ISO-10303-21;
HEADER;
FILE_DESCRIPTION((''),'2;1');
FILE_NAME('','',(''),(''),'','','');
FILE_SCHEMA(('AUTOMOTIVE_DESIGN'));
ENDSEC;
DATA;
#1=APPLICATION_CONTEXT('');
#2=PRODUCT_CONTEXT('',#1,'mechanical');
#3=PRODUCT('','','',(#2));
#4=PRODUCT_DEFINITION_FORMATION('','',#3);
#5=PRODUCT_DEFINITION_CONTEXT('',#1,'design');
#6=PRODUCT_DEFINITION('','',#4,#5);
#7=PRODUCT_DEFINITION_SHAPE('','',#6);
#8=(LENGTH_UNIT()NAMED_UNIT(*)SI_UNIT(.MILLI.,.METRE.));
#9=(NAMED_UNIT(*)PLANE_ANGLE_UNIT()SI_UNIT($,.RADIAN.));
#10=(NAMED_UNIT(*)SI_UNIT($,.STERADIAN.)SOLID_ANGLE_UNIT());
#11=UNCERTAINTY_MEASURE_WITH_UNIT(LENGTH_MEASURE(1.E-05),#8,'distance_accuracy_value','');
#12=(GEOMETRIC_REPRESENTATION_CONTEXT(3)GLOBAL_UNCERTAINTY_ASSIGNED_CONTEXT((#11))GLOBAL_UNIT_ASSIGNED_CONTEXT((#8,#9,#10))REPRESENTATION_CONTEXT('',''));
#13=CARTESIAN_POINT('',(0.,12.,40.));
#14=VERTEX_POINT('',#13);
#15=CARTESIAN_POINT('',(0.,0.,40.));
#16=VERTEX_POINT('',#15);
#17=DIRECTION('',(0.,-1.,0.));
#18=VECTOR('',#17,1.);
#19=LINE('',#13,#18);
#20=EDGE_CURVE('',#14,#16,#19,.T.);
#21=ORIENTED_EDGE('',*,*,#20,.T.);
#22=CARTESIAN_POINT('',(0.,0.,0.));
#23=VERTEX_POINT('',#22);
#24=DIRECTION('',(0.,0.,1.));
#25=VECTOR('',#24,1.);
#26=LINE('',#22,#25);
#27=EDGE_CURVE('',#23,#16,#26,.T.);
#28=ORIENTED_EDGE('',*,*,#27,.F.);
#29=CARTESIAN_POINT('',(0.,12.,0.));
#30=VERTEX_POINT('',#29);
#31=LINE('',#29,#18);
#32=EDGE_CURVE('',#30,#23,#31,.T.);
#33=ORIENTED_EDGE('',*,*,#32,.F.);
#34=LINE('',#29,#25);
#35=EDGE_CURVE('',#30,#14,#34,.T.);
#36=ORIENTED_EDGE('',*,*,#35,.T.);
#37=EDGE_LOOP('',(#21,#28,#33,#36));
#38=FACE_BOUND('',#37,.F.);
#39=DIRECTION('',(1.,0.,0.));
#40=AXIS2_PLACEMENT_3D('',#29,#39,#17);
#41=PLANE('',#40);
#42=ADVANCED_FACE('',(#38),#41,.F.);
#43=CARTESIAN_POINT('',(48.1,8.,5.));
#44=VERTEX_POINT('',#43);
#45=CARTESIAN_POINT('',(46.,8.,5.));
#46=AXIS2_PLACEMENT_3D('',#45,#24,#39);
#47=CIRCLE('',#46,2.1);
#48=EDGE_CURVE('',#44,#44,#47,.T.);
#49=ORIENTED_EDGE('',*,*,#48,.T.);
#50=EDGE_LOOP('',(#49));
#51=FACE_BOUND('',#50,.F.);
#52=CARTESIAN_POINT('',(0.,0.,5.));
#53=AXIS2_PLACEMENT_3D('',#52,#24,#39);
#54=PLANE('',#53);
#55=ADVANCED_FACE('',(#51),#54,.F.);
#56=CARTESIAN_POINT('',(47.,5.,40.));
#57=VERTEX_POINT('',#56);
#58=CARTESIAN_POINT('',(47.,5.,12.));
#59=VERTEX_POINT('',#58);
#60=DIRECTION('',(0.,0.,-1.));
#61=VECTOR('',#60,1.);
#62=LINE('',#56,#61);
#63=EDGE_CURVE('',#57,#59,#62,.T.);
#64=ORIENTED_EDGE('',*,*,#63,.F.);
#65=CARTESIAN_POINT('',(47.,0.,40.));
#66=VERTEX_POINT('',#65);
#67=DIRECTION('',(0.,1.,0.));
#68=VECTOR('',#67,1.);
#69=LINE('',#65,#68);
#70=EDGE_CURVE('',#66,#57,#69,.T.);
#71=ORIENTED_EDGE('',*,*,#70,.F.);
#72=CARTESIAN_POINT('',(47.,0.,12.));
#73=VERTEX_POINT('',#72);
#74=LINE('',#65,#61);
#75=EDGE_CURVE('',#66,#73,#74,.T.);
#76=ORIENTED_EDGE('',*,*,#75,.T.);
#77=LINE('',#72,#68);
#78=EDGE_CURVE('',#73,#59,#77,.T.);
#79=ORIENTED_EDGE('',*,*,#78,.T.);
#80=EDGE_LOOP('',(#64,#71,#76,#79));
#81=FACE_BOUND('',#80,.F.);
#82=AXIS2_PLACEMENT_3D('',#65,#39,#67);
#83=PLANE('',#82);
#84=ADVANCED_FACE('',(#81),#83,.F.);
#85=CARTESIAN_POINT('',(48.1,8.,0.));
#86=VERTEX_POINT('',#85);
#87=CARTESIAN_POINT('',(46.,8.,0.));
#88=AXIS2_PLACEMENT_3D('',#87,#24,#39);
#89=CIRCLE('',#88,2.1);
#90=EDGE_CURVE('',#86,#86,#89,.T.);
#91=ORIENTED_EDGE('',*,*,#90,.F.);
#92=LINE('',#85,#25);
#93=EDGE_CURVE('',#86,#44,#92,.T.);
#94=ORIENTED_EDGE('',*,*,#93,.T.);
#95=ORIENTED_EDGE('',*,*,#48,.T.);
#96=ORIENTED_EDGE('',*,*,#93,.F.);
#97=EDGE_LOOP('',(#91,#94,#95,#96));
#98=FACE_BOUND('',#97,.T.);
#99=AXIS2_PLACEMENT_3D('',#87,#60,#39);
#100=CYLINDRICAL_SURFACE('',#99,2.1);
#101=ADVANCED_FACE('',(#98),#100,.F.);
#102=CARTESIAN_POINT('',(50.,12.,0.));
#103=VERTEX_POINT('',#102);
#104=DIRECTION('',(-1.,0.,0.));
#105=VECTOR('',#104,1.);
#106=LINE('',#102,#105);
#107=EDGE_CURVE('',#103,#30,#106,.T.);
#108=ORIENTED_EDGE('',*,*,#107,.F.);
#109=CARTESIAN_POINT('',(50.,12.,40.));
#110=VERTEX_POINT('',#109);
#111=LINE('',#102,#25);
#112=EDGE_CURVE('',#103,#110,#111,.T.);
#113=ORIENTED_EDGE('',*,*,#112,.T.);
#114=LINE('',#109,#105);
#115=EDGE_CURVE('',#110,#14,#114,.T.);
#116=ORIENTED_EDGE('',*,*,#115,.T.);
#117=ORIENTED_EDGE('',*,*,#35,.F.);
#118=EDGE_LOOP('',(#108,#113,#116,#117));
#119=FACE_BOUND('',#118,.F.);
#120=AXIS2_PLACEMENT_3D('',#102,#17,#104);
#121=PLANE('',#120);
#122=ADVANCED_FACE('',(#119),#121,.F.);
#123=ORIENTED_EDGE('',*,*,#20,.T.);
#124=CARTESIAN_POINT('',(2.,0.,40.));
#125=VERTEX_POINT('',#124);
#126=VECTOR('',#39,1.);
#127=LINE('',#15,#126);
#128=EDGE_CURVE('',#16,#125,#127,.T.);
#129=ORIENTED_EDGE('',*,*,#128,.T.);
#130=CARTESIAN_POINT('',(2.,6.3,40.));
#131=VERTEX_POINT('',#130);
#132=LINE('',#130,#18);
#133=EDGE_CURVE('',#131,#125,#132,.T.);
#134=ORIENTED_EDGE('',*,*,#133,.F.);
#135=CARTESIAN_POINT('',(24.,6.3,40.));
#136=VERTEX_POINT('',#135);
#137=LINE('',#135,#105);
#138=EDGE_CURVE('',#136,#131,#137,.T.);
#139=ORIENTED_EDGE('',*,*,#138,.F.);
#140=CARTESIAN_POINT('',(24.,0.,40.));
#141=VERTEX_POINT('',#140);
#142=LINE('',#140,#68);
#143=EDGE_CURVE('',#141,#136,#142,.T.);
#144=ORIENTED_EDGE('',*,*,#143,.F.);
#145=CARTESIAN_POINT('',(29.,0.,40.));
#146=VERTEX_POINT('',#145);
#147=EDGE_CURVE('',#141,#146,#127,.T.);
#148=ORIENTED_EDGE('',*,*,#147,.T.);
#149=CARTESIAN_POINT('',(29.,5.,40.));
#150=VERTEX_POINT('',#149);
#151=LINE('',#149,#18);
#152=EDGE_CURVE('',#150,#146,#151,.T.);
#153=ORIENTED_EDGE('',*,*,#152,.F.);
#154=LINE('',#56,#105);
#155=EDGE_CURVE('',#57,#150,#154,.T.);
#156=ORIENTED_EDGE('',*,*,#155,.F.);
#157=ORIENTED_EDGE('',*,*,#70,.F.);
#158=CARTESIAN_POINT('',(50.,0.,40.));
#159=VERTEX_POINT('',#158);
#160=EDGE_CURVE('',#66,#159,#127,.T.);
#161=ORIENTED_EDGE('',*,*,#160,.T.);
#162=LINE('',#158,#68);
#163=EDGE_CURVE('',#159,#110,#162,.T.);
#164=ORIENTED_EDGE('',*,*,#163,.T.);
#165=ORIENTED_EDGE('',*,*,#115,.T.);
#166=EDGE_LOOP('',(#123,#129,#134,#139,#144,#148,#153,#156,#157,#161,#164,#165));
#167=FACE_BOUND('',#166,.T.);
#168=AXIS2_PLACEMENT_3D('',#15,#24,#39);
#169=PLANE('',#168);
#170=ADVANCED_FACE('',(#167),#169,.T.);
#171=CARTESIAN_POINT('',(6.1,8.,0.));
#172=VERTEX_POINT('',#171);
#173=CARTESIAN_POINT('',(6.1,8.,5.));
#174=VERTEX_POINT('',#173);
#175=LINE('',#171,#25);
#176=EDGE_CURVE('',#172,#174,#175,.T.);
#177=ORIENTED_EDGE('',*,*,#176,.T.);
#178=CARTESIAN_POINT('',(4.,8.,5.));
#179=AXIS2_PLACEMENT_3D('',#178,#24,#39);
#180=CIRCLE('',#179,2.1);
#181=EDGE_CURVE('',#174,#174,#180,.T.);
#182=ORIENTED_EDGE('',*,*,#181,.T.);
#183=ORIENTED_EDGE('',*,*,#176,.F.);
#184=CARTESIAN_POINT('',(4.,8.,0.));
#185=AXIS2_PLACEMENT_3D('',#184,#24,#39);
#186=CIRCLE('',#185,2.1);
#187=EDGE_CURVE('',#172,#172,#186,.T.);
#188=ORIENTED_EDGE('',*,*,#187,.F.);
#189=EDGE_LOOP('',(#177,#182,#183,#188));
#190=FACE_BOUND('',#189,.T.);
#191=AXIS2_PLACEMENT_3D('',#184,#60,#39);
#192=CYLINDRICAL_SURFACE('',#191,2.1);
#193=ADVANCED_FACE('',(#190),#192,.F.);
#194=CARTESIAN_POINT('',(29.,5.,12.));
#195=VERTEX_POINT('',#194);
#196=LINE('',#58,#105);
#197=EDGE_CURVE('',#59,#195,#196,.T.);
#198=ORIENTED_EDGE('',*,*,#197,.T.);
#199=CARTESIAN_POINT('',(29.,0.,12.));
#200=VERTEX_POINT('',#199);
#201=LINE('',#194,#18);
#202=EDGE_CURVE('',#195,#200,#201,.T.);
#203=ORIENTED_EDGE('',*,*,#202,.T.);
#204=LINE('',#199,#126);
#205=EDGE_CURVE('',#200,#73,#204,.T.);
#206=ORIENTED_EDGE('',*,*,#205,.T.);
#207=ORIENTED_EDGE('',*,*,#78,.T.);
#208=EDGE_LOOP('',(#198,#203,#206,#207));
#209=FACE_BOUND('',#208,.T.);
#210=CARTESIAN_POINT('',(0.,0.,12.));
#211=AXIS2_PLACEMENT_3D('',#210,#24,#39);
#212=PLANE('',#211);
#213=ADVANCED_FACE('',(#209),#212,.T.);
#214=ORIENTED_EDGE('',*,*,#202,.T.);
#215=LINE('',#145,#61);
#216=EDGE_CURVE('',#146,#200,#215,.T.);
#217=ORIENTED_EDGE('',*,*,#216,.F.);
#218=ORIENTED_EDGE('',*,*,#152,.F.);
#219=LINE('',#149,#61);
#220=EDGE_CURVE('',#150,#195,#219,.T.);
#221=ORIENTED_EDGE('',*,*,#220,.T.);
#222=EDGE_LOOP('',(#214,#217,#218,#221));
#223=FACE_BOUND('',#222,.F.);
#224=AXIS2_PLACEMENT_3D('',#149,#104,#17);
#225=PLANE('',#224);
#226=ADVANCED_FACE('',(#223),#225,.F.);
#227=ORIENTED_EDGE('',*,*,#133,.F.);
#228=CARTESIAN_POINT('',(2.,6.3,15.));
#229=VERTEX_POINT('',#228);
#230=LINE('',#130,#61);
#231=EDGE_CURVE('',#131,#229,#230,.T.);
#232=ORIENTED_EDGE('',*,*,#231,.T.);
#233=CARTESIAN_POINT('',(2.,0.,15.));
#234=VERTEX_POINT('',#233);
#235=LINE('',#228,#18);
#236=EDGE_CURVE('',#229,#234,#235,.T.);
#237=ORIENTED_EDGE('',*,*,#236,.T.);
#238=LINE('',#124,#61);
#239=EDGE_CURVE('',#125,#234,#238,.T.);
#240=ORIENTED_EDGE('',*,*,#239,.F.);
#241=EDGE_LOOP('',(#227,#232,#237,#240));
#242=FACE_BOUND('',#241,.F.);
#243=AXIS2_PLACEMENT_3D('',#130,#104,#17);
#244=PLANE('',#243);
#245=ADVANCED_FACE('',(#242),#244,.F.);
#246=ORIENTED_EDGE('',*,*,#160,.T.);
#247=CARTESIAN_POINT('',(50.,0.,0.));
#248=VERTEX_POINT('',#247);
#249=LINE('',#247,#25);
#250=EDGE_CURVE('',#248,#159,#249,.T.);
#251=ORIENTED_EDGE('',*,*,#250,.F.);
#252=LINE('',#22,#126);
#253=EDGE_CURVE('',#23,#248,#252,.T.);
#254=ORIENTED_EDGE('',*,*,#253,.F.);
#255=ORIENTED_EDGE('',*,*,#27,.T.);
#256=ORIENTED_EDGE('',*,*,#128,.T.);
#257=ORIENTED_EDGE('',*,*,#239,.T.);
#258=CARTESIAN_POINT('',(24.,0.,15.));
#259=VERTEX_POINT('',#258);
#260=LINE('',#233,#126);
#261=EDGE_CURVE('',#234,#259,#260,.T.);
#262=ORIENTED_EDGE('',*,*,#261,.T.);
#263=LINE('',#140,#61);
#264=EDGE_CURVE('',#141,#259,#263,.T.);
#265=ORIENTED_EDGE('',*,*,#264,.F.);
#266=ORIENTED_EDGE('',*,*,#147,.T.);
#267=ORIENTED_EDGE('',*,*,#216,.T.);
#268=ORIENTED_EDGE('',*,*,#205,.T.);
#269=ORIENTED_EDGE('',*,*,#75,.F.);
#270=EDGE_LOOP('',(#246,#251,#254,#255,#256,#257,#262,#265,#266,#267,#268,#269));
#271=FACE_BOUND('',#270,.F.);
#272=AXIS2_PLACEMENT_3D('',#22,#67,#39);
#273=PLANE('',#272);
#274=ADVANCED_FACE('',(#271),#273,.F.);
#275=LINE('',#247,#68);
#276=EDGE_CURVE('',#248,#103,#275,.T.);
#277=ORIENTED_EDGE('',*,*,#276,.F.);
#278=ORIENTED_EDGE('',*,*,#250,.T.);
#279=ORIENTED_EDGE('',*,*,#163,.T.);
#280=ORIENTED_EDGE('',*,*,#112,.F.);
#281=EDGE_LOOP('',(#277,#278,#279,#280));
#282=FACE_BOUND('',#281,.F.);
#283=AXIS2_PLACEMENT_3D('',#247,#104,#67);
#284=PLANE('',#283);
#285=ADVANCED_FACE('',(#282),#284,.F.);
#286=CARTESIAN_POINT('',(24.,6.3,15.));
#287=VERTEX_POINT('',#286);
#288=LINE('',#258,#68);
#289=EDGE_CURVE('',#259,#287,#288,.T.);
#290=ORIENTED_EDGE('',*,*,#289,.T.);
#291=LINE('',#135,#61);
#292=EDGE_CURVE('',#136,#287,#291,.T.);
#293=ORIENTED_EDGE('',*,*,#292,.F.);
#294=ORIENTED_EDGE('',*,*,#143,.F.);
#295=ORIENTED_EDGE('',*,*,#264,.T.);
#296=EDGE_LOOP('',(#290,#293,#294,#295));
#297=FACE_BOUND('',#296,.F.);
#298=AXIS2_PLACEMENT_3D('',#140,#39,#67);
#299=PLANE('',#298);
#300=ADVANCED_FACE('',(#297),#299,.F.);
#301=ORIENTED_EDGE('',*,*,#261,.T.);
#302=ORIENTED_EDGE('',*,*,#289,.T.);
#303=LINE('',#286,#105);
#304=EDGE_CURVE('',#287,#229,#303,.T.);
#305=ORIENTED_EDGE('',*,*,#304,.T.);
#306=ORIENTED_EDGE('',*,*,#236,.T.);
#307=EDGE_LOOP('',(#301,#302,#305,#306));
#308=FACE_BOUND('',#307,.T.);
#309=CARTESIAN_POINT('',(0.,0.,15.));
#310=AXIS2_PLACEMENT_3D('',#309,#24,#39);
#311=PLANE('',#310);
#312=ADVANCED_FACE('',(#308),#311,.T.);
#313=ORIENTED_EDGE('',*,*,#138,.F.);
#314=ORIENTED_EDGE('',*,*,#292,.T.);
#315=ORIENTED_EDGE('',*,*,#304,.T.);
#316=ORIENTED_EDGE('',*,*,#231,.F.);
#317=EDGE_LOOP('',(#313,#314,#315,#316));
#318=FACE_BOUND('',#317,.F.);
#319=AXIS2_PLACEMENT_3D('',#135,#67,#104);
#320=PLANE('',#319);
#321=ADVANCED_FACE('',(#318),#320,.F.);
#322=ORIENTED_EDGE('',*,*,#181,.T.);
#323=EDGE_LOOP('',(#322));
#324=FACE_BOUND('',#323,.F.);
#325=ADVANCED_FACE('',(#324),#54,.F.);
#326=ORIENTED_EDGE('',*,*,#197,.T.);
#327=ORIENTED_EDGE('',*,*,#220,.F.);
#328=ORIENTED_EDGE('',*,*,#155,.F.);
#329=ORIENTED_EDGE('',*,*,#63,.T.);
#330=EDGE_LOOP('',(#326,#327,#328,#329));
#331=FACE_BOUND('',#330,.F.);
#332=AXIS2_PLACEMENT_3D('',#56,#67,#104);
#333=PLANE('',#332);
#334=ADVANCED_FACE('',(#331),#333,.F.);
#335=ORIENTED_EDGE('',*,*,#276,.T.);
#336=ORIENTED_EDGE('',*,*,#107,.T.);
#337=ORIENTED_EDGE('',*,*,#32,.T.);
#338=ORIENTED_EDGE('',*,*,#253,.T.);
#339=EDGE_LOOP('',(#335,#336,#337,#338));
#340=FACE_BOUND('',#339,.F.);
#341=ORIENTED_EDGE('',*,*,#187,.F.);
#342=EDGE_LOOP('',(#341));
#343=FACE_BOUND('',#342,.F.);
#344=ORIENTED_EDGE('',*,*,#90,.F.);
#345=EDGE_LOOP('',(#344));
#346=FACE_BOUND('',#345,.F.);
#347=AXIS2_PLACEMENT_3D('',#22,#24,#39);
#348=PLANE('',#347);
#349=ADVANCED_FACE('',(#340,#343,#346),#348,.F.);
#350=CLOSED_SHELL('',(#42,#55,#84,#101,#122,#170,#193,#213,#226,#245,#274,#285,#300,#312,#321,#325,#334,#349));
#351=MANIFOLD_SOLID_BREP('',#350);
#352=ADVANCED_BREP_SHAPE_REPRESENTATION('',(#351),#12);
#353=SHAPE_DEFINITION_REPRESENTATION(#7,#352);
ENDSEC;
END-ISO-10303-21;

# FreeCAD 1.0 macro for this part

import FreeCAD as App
import Part
import Sketcher
from FreeCAD import Vector
Q = App.Units.Quantity


def add_polygon(sketch, points):
    """Adds a closed chain of lines whose ends are joined by coincident constraints."""
    first, n = sketch.GeometryCount, len(points)
    for a, b in zip(points, points[1:] + points[:1]):
        sketch.addGeometry(Part.LineSegment(App.Vector(*a, 0), App.Vector(*b, 0)), False)
    for i in range(n):
        sketch.addConstraint(Sketcher.Constraint("Coincident", first + i, 2, first + (i + 1) % n, 1))

doc = App.newDocument("Part")
body = doc.addObject("PartDesign::Body", "Body")

# Sketch on XY plane
sketch1 = body.newObject("Sketcher::SketchObject", "Sketch")
sketch1.AttachmentSupport = (doc.getObject("XY_Plane"), [""])
sketch1.MapMode = "FlatFace"
add_polygon(sketch1, [(0, 12), (0, 0), (50, 0), (50, 12)])  # lines 0-3
sketch1.addConstraint([
    Sketcher.Constraint("Vertical", 0),
    Sketcher.Constraint("Horizontal", 1),
    Sketcher.Constraint("Vertical", 2),
    Sketcher.Constraint("Horizontal", 3),
    Sketcher.Constraint("Coincident", 0, 2, -1, 1),
    Sketcher.Constraint("DistanceX", 1, 1, 1, 2, Q("50 mm")),
    Sketcher.Constraint("DistanceY", 0, 2, 0, 1, Q("12 mm")),
])
pad1 = body.newObject("PartDesign::Pad", "Pad")
pad1.Profile = sketch1
pad1.Length = 40

# Sketch on XY plane
sketch2 = body.newObject("Sketcher::SketchObject", "Sketch001")
sketch2.AttachmentSupport = (doc.getObject("XY_Plane"), [""])
sketch2.MapMode = "FlatFace"
sketch2.AttachmentOffset = App.Placement(Vector(0, 0, 40), App.Rotation())
add_polygon(sketch2, [(29, 5), (29, 0), (47, 0), (47, 5)])  # lines 0-3
sketch2.addConstraint([
    Sketcher.Constraint("Vertical", 0),
    Sketcher.Constraint("Horizontal", 1),
    Sketcher.Constraint("Vertical", 2),
    Sketcher.Constraint("Horizontal", 3),
    Sketcher.Constraint("PointOnObject", 0, 2, -1),
    Sketcher.Constraint("DistanceX", 1, 1, 1, 2, Q("18 mm")),
    Sketcher.Constraint("DistanceY", 0, 2, 0, 1, Q("5 mm")),
    Sketcher.Constraint("DistanceX", -1, 1, 0, 2, Q("29 mm")),
])
pocket1 = body.newObject("PartDesign::Pocket", "Pocket")
pocket1.Profile = sketch2
pocket1.Length = 28

# Sketch on XY plane
sketch3 = body.newObject("Sketcher::SketchObject", "Sketch002")
sketch3.AttachmentSupport = (doc.getObject("XY_Plane"), [""])
sketch3.MapMode = "FlatFace"
sketch3.AttachmentOffset = App.Placement(Vector(0, 0, 40), App.Rotation())
add_polygon(sketch3, [(2, 6), (2, 0), (24, 0), (24, 6)])  # lines 0-3
sketch3.addConstraint([
    Sketcher.Constraint("Vertical", 0),
    Sketcher.Constraint("Horizontal", 1),
    Sketcher.Constraint("Vertical", 2),
    Sketcher.Constraint("Horizontal", 3),
    Sketcher.Constraint("PointOnObject", 0, 2, -1),
    Sketcher.Constraint("DistanceX", 1, 1, 1, 2, Q("22 mm")),
    Sketcher.Constraint("DistanceY", 0, 2, 0, 1, Q("6.3 mm")),
    Sketcher.Constraint("DistanceX", -1, 1, 0, 2, Q("2 mm")),
])
pocket2 = body.newObject("PartDesign::Pocket", "Pocket001")
pocket2.Profile = sketch3
pocket2.Length = 25

# Sketch on XZ plane
sketch4 = body.newObject("Sketcher::SketchObject", "Sketch003")
sketch4.AttachmentSupport = (doc.getObject("XZ_Plane"), [""])
sketch4.MapMode = "FlatFace"
sketch4.addGeometry(Part.Circle(Vector(-38, 20, 0), Vector(0, 0, 1), 2), False)
sketch4.addConstraint([
    Sketcher.Constraint("Diameter", 0, Q("4 mm")),
    Sketcher.Constraint("DistanceX", 0, 3, -1, 1, Q("38 mm")),
    Sketcher.Constraint("DistanceY", -1, 1, 0, 3, Q("20 mm")),
])
pocket3 = body.newObject("PartDesign::Pocket", "Pocket002")
pocket3.Profile = sketch4
pocket3.Length = 30
pocket3.Midplane = True

# Sketch on XY plane
sketch5 = body.newObject("Sketcher::SketchObject", "Sketch004")
sketch5.AttachmentSupport = (doc.getObject("XY_Plane"), [""])
sketch5.MapMode = "FlatFace"
sketch5.AttachmentOffset = App.Placement(Vector(0, 0, 40), App.Rotation())
sketch5.addGeometry(Part.Circle(Vector(13, 0, 0), Vector(0, 0, 1), 2.5), False)
sketch5.addConstraint([
    Sketcher.Constraint("PointOnObject", 0, 3, -1),
    Sketcher.Constraint("Diameter", 0, Q("5 mm")),
    Sketcher.Constraint("DistanceX", -1, 1, 0, 3, Q("13 mm")),
])
pocket4 = body.newObject("PartDesign::Pocket", "Pocket003")
pocket4.Profile = sketch5
pocket4.Length = 5

# Sketch on XY plane
sketch6 = body.newObject("Sketcher::SketchObject", "Sketch005")
sketch6.AttachmentSupport = (doc.getObject("XY_Plane"), [""])
sketch6.MapMode = "FlatFace"
sketch6.addGeometry([
    Part.Circle(Vector(4, -8, 0), Vector(0, 0, 1), 2.1),
    Part.Circle(Vector(4, 8, 0), Vector(0, 0, 1), 2.1),
    Part.Circle(Vector(46, -8, 0), Vector(0, 0, 1), 2.1),
    Part.Circle(Vector(46, 8, 0), Vector(0, 0, 1), 2.1),
], False)
sketch6.addConstraint([
    Sketcher.Constraint("Equal", 0, 1),
    Sketcher.Constraint("Equal", 1, 2),
    Sketcher.Constraint("Equal", 2, 3),
    Sketcher.Constraint("Symmetric", 0, 3, 1, 3, -1),
    Sketcher.Constraint("Symmetric", 2, 3, 3, 3, -1),
    Sketcher.Constraint("Horizontal", 0, 3, 2, 3),
    Sketcher.Constraint("Diameter", 0, Q("4.2 mm")),
    Sketcher.Constraint("DistanceX", -1, 1, 0, 3, Q("4 mm")),
    Sketcher.Constraint("DistanceY", 0, 3, -1, 1, Q("8 mm")),
    Sketcher.Constraint("DistanceX", -1, 1, 2, 3, Q("46 mm")),
])
pocket5 = body.newObject("PartDesign::Pocket", "Pocket004")
pocket5.Profile = sketch6
pocket5.Length = 5
pocket5.Reversed = True

doc.recompute()
